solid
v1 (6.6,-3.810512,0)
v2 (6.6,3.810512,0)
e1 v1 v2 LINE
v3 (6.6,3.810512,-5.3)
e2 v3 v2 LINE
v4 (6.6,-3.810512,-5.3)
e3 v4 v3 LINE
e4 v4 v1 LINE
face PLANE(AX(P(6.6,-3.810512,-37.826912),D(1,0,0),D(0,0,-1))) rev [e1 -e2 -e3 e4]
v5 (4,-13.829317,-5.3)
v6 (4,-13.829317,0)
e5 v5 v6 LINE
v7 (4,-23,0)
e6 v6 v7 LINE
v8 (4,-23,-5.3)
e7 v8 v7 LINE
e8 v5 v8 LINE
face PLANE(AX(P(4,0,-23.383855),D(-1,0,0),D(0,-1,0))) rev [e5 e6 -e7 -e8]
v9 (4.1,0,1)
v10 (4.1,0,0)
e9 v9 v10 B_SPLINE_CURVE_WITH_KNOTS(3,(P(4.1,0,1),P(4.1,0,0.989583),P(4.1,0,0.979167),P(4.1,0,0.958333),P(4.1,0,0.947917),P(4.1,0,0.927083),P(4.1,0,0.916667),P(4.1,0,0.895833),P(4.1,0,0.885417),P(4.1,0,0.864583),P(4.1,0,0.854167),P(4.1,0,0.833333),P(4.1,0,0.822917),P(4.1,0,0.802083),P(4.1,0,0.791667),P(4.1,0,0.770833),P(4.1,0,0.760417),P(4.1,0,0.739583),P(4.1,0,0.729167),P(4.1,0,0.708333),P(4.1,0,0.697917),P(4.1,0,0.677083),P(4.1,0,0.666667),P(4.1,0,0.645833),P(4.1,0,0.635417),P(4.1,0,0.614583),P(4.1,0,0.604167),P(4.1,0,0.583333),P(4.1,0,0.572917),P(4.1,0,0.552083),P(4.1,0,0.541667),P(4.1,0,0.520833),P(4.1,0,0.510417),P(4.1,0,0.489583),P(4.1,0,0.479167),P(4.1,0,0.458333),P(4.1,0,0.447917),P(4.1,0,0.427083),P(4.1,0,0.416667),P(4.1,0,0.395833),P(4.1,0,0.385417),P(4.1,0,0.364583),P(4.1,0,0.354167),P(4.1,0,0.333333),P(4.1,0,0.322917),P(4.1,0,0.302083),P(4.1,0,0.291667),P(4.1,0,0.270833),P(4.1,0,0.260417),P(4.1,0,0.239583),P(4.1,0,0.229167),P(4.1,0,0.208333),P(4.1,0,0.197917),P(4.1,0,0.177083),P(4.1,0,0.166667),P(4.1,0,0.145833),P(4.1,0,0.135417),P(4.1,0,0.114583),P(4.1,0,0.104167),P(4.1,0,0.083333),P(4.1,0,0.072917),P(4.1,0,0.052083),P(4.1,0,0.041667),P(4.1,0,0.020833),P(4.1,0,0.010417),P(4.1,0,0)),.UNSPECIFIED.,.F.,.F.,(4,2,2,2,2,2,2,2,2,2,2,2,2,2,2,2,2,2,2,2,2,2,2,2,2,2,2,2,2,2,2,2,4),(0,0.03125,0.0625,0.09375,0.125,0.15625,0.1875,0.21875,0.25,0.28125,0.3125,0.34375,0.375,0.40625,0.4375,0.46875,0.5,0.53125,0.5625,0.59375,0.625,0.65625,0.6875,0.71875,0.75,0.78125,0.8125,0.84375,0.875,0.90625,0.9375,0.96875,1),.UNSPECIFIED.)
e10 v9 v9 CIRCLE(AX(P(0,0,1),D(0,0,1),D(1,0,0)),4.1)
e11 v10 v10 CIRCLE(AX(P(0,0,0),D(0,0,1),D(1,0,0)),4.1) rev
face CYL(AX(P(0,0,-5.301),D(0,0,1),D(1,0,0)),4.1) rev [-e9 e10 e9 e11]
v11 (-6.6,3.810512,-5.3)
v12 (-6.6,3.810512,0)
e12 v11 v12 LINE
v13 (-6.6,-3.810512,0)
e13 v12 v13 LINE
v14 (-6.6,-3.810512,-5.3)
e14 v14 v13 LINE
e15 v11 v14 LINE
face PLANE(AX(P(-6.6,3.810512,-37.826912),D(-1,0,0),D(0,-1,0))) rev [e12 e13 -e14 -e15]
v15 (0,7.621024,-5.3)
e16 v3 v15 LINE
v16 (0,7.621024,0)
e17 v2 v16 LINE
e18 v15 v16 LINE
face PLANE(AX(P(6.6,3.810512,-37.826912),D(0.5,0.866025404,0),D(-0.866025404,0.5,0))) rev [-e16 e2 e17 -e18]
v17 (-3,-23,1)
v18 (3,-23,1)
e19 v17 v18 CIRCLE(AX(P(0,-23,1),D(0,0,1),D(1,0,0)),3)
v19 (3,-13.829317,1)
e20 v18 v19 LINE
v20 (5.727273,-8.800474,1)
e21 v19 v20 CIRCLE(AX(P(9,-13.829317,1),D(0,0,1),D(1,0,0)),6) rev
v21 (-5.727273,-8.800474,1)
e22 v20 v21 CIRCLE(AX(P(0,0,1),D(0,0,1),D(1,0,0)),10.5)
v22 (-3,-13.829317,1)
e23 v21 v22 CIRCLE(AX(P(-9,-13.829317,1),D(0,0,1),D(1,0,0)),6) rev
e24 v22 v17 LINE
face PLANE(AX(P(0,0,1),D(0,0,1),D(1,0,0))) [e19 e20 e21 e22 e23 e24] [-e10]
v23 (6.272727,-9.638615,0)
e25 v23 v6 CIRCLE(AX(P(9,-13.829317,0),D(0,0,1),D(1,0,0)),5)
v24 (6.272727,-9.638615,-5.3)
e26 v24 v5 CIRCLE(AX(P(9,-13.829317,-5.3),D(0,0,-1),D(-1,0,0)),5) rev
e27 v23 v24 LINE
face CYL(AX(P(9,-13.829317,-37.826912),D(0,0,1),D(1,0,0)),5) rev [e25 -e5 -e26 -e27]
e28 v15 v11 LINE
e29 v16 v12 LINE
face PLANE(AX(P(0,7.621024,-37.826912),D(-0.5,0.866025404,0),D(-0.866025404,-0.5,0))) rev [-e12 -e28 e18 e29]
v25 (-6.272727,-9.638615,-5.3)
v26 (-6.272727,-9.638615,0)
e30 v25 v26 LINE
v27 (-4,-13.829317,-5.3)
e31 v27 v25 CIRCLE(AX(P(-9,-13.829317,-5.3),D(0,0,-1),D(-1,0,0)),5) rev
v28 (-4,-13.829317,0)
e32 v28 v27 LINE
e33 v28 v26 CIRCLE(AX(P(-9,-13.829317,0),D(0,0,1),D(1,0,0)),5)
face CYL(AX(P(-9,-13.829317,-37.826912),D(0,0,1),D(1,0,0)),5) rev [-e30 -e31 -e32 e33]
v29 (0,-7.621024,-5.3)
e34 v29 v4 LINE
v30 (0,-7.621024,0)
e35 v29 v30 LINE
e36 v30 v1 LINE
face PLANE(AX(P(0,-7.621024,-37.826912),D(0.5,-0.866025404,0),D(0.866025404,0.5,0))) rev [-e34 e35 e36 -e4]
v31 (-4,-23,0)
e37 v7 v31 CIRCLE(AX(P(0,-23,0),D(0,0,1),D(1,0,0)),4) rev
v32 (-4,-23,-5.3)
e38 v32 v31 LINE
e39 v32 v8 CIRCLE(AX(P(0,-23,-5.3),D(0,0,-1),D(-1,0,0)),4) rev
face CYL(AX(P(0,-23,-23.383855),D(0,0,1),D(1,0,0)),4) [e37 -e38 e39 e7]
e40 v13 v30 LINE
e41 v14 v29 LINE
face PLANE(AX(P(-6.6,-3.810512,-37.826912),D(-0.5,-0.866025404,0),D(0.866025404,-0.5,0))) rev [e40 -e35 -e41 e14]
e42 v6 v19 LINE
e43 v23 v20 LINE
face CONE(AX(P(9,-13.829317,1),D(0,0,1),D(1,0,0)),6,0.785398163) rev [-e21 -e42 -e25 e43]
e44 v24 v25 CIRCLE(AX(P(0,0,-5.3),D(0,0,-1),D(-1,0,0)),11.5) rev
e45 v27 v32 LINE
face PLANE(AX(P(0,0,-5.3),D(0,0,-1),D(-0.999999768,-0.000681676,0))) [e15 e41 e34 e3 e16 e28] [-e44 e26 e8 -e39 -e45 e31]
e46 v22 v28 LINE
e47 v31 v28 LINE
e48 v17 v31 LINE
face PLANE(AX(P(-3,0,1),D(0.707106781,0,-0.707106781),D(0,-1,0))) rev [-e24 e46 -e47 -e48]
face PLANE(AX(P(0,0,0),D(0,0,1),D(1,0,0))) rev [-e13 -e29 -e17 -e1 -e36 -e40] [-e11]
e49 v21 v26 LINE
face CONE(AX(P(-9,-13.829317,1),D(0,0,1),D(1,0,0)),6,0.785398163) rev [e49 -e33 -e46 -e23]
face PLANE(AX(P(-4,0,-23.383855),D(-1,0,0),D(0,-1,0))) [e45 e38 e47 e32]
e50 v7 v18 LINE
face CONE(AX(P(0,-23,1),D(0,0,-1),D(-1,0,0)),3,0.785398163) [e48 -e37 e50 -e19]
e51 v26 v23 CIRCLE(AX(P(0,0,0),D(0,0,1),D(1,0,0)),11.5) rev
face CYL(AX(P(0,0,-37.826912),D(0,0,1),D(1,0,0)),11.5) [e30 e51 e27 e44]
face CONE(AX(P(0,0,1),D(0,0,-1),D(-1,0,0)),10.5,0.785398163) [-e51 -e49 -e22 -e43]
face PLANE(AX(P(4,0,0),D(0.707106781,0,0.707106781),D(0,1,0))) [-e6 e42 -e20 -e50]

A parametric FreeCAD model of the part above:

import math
import FreeCAD as App
import Part
import Sketcher
from FreeCAD import Vector
Q = App.Units.Quantity


def edges_at(feature, points):
    """Names of the edges that pass closest to the given points."""
    edges = feature.Shape.Edges
    near = lambda p: min(range(len(edges)), key=lambda i: edges[i].distToShape(Part.Vertex(*p))[0])
    return sorted({f"Edge{near(p) + 1}" for p in points})

doc = App.newDocument("Part")
body = doc.addObject("PartDesign::Body", "Body")

# Sketch on XY plane
sketch1 = doc.addObject("Sketcher::SketchObject", "Sketch")
body.addObject(sketch1)
sketch1.AttachmentSupport = (doc.XY_Plane, [""])
sketch1.MapMode = "FlatFace"
sketch1.addGeometry([
    Part.Circle(Vector(0, 0, 0), Vector(0, 0, 1), 12),  # 0
    Part.LineSegment(Vector(-7, 4, 0), Vector(0, 8, 0)),  # 1
    Part.LineSegment(Vector(0, 8, 0), Vector(7, 4, 0)),  # 2
    Part.LineSegment(Vector(7, 4, 0), Vector(7, -4, 0)),  # 3
    Part.LineSegment(Vector(7, -4, 0), Vector(0, -8, 0)),  # 4
    Part.LineSegment(Vector(0, -8, 0), Vector(-7, -4, 0)),  # 5
    Part.LineSegment(Vector(-7, -4, 0), Vector(-7, 4, 0)),  # 6
], False)
sketch1.addConstraint([
    Sketcher.Constraint("Coincident", 1, 2, 2, 1),
    Sketcher.Constraint("Coincident", 2, 2, 3, 1),
    Sketcher.Constraint("Coincident", 3, 2, 4, 1),
    Sketcher.Constraint("Coincident", 4, 2, 5, 1),
    Sketcher.Constraint("Coincident", 5, 2, 6, 1),
    Sketcher.Constraint("Coincident", 6, 2, 1, 1),
    Sketcher.Constraint("Vertical", 3),
    Sketcher.Constraint("Vertical", 6),
    Sketcher.Constraint("Coincident", 0, 3, -1, 1),
    Sketcher.Constraint("Symmetric", 1, 2, 4, 2, -1, 1),
    Sketcher.Constraint("Symmetric", 2, 2, 5, 2, -1, 1),
    Sketcher.Constraint("PointOnObject", 1, 2, -2),
    Sketcher.Constraint("Parallel", 1, 4),
    Sketcher.Constraint("Horizontal", 3, 2, 5, 2),
    Sketcher.Constraint("Diameter", 0, Q("23 mm")),
    Sketcher.Constraint("Angle", 1, Q("30 deg")),
    Sketcher.Constraint("DistanceX", -1, 1, 2, 2, Q("6.6 mm")),
    Sketcher.Constraint("DistanceY", 3, 2, 3, 1, Q("7.621024 mm")),
])
pad1 = doc.addObject("PartDesign::Pad", "Pad")
body.addObject(pad1)
pad1.Profile = sketch1
pad1.Length = 5.3
pad1.Reversed = True

# Sketch on XY plane
sketch2 = doc.addObject("Sketcher::SketchObject", "Sketch001")
body.addObject(sketch2)
sketch2.AttachmentSupport = (doc.XY_Plane, [""])
sketch2.MapMode = "FlatFace"
sketch2.AttachmentOffset = App.Placement(Vector(0, 0, 1), App.Rotation())
sketch2.addGeometry(Part.Circle(Vector(0, 0, 0), Vector(0, 0, 1), 12), False)
sketch2.addConstraint([
    Sketcher.Constraint("Coincident", 0, 3, -1, 1),
    Sketcher.Constraint("Diameter", 0, Q("23 mm")),
])
pad2 = doc.addObject("PartDesign::Pad", "Pad001")
body.addObject(pad2)
pad2.Profile = sketch2
pad2.Length = 1
pad2.Reversed = True

# Sketch on XY plane
sketch3 = doc.addObject("Sketcher::SketchObject", "Sketch002")
body.addObject(sketch3)
sketch3.AttachmentSupport = (doc.XY_Plane, [""])
sketch3.MapMode = "FlatFace"
sketch3.AttachmentOffset = App.Placement(Vector(0, 0, 1), App.Rotation())
sketch3.addGeometry([
    Part.LineSegment(Vector(4, -23, 0), Vector(4, -10.8, 0)),
    Part.ArcOfCircle(Part.Circle(Vector(0, 0, 0), Vector(0, 0, 1), 11.5), math.radians(-110), math.radians(-70)),
    Part.LineSegment(Vector(-4, -10.8, 0), Vector(-4, -23, 0)),
    Part.ArcOfCircle(Part.Circle(Vector(0, -23, 0), Vector(0, 0, 1), 4), math.radians(180), math.radians(360)),
], False)
sketch3.addConstraint([
    Sketcher.Constraint("Coincident", 0, 2, 1, 2),
    Sketcher.Constraint("Coincident", 1, 1, 2, 1),
    Sketcher.Constraint("Tangent", 2, 2, 3, 1),
    Sketcher.Constraint("Tangent", 3, 2, 0, 1),
    Sketcher.Constraint("Vertical", 0),
    Sketcher.Constraint("Vertical", 2),
    Sketcher.Constraint("Coincident", 1, 3, -1, 1),
    Sketcher.Constraint("PointOnObject", 3, 3, -2),
    Sketcher.Constraint("Radius", 3, Q("4 mm")),
    Sketcher.Constraint("Radius", 1, Q("11.5 mm")),
    Sketcher.Constraint("DistanceY", 3, 3, -1, 1, Q("23 mm")),
])
pad3 = doc.addObject("PartDesign::Pad", "Pad002")
body.addObject(pad3)
pad3.Profile = sketch3
pad3.Length = 6.3
pad3.Reversed = True
doc.recompute()

fillet = doc.addObject("PartDesign::Fillet", "Fillet")
body.addObject(fillet)
fillet.Base = (pad3, edges_at(pad3, [(4, -10.782, -2.15), (-4, -10.782, -2.15)]))
fillet.Radius = 5
doc.recompute()

chamfer = doc.addObject("PartDesign::Chamfer", "Chamfer")
body.addObject(chamfer)
chamfer.Base = (fillet, edges_at(fillet, [
    (0, -27, 1),
    (0, 11.5, 1),
    (-4, -18.415, 1),
    (4, -18.415, 1),
    (-4.605, -11.446, 1),
    (4.605, -11.446, 1),
]))
chamfer.Size = 1

# Sketch on XY plane
sketch4 = doc.addObject("Sketcher::SketchObject", "Sketch003")
body.addObject(sketch4)
sketch4.AttachmentSupport = (doc.XY_Plane, [""])
sketch4.MapMode = "FlatFace"
sketch4.AttachmentOffset = App.Placement(Vector(0, 0, 1), App.Rotation())
sketch4.addGeometry(Part.Circle(Vector(0, 0, 0), Vector(0, 0, 1), 4.1), False)
sketch4.addConstraint([
    Sketcher.Constraint("Coincident", 0, 3, -1, 1),
    Sketcher.Constraint("Diameter", 0, Q("8.2 mm")),
])
pocket1 = doc.addObject("PartDesign::Pocket", "Pocket")
body.addObject(pocket1)
pocket1.Profile = sketch4
pocket1.Type = "UpToFirst"

doc.recompute()
